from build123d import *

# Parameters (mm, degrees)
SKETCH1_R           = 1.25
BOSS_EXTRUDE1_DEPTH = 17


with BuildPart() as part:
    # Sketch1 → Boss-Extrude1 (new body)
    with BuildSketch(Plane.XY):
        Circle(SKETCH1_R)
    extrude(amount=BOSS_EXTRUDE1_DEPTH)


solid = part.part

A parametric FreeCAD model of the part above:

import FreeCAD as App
import Part
import Sketcher

doc = App.newDocument("Part")
body = doc.addObject("PartDesign::Body", "Body")

# Sketch on XY plane
sketch1 = body.newObject("Sketcher::SketchObject", "Sketch")
sketch1.AttachmentSupport = (doc.getObject("XY_Plane"), [""])
sketch1.MapMode = "FlatFace"
sketch1.addGeometry(Part.Circle(App.Vector(0, 0, 0), App.Vector(0, 0, 1), 1.2), False)
sketch1.addConstraint(Sketcher.Constraint("Coincident", 0, 3, -1, 1))
sketch1.addConstraint(Sketcher.Constraint("Diameter", 0, 2.5))
pad1 = body.newObject("PartDesign::Pad", "Pad")
pad1.Profile = sketch1
pad1.Length = 17

doc.recompute()
